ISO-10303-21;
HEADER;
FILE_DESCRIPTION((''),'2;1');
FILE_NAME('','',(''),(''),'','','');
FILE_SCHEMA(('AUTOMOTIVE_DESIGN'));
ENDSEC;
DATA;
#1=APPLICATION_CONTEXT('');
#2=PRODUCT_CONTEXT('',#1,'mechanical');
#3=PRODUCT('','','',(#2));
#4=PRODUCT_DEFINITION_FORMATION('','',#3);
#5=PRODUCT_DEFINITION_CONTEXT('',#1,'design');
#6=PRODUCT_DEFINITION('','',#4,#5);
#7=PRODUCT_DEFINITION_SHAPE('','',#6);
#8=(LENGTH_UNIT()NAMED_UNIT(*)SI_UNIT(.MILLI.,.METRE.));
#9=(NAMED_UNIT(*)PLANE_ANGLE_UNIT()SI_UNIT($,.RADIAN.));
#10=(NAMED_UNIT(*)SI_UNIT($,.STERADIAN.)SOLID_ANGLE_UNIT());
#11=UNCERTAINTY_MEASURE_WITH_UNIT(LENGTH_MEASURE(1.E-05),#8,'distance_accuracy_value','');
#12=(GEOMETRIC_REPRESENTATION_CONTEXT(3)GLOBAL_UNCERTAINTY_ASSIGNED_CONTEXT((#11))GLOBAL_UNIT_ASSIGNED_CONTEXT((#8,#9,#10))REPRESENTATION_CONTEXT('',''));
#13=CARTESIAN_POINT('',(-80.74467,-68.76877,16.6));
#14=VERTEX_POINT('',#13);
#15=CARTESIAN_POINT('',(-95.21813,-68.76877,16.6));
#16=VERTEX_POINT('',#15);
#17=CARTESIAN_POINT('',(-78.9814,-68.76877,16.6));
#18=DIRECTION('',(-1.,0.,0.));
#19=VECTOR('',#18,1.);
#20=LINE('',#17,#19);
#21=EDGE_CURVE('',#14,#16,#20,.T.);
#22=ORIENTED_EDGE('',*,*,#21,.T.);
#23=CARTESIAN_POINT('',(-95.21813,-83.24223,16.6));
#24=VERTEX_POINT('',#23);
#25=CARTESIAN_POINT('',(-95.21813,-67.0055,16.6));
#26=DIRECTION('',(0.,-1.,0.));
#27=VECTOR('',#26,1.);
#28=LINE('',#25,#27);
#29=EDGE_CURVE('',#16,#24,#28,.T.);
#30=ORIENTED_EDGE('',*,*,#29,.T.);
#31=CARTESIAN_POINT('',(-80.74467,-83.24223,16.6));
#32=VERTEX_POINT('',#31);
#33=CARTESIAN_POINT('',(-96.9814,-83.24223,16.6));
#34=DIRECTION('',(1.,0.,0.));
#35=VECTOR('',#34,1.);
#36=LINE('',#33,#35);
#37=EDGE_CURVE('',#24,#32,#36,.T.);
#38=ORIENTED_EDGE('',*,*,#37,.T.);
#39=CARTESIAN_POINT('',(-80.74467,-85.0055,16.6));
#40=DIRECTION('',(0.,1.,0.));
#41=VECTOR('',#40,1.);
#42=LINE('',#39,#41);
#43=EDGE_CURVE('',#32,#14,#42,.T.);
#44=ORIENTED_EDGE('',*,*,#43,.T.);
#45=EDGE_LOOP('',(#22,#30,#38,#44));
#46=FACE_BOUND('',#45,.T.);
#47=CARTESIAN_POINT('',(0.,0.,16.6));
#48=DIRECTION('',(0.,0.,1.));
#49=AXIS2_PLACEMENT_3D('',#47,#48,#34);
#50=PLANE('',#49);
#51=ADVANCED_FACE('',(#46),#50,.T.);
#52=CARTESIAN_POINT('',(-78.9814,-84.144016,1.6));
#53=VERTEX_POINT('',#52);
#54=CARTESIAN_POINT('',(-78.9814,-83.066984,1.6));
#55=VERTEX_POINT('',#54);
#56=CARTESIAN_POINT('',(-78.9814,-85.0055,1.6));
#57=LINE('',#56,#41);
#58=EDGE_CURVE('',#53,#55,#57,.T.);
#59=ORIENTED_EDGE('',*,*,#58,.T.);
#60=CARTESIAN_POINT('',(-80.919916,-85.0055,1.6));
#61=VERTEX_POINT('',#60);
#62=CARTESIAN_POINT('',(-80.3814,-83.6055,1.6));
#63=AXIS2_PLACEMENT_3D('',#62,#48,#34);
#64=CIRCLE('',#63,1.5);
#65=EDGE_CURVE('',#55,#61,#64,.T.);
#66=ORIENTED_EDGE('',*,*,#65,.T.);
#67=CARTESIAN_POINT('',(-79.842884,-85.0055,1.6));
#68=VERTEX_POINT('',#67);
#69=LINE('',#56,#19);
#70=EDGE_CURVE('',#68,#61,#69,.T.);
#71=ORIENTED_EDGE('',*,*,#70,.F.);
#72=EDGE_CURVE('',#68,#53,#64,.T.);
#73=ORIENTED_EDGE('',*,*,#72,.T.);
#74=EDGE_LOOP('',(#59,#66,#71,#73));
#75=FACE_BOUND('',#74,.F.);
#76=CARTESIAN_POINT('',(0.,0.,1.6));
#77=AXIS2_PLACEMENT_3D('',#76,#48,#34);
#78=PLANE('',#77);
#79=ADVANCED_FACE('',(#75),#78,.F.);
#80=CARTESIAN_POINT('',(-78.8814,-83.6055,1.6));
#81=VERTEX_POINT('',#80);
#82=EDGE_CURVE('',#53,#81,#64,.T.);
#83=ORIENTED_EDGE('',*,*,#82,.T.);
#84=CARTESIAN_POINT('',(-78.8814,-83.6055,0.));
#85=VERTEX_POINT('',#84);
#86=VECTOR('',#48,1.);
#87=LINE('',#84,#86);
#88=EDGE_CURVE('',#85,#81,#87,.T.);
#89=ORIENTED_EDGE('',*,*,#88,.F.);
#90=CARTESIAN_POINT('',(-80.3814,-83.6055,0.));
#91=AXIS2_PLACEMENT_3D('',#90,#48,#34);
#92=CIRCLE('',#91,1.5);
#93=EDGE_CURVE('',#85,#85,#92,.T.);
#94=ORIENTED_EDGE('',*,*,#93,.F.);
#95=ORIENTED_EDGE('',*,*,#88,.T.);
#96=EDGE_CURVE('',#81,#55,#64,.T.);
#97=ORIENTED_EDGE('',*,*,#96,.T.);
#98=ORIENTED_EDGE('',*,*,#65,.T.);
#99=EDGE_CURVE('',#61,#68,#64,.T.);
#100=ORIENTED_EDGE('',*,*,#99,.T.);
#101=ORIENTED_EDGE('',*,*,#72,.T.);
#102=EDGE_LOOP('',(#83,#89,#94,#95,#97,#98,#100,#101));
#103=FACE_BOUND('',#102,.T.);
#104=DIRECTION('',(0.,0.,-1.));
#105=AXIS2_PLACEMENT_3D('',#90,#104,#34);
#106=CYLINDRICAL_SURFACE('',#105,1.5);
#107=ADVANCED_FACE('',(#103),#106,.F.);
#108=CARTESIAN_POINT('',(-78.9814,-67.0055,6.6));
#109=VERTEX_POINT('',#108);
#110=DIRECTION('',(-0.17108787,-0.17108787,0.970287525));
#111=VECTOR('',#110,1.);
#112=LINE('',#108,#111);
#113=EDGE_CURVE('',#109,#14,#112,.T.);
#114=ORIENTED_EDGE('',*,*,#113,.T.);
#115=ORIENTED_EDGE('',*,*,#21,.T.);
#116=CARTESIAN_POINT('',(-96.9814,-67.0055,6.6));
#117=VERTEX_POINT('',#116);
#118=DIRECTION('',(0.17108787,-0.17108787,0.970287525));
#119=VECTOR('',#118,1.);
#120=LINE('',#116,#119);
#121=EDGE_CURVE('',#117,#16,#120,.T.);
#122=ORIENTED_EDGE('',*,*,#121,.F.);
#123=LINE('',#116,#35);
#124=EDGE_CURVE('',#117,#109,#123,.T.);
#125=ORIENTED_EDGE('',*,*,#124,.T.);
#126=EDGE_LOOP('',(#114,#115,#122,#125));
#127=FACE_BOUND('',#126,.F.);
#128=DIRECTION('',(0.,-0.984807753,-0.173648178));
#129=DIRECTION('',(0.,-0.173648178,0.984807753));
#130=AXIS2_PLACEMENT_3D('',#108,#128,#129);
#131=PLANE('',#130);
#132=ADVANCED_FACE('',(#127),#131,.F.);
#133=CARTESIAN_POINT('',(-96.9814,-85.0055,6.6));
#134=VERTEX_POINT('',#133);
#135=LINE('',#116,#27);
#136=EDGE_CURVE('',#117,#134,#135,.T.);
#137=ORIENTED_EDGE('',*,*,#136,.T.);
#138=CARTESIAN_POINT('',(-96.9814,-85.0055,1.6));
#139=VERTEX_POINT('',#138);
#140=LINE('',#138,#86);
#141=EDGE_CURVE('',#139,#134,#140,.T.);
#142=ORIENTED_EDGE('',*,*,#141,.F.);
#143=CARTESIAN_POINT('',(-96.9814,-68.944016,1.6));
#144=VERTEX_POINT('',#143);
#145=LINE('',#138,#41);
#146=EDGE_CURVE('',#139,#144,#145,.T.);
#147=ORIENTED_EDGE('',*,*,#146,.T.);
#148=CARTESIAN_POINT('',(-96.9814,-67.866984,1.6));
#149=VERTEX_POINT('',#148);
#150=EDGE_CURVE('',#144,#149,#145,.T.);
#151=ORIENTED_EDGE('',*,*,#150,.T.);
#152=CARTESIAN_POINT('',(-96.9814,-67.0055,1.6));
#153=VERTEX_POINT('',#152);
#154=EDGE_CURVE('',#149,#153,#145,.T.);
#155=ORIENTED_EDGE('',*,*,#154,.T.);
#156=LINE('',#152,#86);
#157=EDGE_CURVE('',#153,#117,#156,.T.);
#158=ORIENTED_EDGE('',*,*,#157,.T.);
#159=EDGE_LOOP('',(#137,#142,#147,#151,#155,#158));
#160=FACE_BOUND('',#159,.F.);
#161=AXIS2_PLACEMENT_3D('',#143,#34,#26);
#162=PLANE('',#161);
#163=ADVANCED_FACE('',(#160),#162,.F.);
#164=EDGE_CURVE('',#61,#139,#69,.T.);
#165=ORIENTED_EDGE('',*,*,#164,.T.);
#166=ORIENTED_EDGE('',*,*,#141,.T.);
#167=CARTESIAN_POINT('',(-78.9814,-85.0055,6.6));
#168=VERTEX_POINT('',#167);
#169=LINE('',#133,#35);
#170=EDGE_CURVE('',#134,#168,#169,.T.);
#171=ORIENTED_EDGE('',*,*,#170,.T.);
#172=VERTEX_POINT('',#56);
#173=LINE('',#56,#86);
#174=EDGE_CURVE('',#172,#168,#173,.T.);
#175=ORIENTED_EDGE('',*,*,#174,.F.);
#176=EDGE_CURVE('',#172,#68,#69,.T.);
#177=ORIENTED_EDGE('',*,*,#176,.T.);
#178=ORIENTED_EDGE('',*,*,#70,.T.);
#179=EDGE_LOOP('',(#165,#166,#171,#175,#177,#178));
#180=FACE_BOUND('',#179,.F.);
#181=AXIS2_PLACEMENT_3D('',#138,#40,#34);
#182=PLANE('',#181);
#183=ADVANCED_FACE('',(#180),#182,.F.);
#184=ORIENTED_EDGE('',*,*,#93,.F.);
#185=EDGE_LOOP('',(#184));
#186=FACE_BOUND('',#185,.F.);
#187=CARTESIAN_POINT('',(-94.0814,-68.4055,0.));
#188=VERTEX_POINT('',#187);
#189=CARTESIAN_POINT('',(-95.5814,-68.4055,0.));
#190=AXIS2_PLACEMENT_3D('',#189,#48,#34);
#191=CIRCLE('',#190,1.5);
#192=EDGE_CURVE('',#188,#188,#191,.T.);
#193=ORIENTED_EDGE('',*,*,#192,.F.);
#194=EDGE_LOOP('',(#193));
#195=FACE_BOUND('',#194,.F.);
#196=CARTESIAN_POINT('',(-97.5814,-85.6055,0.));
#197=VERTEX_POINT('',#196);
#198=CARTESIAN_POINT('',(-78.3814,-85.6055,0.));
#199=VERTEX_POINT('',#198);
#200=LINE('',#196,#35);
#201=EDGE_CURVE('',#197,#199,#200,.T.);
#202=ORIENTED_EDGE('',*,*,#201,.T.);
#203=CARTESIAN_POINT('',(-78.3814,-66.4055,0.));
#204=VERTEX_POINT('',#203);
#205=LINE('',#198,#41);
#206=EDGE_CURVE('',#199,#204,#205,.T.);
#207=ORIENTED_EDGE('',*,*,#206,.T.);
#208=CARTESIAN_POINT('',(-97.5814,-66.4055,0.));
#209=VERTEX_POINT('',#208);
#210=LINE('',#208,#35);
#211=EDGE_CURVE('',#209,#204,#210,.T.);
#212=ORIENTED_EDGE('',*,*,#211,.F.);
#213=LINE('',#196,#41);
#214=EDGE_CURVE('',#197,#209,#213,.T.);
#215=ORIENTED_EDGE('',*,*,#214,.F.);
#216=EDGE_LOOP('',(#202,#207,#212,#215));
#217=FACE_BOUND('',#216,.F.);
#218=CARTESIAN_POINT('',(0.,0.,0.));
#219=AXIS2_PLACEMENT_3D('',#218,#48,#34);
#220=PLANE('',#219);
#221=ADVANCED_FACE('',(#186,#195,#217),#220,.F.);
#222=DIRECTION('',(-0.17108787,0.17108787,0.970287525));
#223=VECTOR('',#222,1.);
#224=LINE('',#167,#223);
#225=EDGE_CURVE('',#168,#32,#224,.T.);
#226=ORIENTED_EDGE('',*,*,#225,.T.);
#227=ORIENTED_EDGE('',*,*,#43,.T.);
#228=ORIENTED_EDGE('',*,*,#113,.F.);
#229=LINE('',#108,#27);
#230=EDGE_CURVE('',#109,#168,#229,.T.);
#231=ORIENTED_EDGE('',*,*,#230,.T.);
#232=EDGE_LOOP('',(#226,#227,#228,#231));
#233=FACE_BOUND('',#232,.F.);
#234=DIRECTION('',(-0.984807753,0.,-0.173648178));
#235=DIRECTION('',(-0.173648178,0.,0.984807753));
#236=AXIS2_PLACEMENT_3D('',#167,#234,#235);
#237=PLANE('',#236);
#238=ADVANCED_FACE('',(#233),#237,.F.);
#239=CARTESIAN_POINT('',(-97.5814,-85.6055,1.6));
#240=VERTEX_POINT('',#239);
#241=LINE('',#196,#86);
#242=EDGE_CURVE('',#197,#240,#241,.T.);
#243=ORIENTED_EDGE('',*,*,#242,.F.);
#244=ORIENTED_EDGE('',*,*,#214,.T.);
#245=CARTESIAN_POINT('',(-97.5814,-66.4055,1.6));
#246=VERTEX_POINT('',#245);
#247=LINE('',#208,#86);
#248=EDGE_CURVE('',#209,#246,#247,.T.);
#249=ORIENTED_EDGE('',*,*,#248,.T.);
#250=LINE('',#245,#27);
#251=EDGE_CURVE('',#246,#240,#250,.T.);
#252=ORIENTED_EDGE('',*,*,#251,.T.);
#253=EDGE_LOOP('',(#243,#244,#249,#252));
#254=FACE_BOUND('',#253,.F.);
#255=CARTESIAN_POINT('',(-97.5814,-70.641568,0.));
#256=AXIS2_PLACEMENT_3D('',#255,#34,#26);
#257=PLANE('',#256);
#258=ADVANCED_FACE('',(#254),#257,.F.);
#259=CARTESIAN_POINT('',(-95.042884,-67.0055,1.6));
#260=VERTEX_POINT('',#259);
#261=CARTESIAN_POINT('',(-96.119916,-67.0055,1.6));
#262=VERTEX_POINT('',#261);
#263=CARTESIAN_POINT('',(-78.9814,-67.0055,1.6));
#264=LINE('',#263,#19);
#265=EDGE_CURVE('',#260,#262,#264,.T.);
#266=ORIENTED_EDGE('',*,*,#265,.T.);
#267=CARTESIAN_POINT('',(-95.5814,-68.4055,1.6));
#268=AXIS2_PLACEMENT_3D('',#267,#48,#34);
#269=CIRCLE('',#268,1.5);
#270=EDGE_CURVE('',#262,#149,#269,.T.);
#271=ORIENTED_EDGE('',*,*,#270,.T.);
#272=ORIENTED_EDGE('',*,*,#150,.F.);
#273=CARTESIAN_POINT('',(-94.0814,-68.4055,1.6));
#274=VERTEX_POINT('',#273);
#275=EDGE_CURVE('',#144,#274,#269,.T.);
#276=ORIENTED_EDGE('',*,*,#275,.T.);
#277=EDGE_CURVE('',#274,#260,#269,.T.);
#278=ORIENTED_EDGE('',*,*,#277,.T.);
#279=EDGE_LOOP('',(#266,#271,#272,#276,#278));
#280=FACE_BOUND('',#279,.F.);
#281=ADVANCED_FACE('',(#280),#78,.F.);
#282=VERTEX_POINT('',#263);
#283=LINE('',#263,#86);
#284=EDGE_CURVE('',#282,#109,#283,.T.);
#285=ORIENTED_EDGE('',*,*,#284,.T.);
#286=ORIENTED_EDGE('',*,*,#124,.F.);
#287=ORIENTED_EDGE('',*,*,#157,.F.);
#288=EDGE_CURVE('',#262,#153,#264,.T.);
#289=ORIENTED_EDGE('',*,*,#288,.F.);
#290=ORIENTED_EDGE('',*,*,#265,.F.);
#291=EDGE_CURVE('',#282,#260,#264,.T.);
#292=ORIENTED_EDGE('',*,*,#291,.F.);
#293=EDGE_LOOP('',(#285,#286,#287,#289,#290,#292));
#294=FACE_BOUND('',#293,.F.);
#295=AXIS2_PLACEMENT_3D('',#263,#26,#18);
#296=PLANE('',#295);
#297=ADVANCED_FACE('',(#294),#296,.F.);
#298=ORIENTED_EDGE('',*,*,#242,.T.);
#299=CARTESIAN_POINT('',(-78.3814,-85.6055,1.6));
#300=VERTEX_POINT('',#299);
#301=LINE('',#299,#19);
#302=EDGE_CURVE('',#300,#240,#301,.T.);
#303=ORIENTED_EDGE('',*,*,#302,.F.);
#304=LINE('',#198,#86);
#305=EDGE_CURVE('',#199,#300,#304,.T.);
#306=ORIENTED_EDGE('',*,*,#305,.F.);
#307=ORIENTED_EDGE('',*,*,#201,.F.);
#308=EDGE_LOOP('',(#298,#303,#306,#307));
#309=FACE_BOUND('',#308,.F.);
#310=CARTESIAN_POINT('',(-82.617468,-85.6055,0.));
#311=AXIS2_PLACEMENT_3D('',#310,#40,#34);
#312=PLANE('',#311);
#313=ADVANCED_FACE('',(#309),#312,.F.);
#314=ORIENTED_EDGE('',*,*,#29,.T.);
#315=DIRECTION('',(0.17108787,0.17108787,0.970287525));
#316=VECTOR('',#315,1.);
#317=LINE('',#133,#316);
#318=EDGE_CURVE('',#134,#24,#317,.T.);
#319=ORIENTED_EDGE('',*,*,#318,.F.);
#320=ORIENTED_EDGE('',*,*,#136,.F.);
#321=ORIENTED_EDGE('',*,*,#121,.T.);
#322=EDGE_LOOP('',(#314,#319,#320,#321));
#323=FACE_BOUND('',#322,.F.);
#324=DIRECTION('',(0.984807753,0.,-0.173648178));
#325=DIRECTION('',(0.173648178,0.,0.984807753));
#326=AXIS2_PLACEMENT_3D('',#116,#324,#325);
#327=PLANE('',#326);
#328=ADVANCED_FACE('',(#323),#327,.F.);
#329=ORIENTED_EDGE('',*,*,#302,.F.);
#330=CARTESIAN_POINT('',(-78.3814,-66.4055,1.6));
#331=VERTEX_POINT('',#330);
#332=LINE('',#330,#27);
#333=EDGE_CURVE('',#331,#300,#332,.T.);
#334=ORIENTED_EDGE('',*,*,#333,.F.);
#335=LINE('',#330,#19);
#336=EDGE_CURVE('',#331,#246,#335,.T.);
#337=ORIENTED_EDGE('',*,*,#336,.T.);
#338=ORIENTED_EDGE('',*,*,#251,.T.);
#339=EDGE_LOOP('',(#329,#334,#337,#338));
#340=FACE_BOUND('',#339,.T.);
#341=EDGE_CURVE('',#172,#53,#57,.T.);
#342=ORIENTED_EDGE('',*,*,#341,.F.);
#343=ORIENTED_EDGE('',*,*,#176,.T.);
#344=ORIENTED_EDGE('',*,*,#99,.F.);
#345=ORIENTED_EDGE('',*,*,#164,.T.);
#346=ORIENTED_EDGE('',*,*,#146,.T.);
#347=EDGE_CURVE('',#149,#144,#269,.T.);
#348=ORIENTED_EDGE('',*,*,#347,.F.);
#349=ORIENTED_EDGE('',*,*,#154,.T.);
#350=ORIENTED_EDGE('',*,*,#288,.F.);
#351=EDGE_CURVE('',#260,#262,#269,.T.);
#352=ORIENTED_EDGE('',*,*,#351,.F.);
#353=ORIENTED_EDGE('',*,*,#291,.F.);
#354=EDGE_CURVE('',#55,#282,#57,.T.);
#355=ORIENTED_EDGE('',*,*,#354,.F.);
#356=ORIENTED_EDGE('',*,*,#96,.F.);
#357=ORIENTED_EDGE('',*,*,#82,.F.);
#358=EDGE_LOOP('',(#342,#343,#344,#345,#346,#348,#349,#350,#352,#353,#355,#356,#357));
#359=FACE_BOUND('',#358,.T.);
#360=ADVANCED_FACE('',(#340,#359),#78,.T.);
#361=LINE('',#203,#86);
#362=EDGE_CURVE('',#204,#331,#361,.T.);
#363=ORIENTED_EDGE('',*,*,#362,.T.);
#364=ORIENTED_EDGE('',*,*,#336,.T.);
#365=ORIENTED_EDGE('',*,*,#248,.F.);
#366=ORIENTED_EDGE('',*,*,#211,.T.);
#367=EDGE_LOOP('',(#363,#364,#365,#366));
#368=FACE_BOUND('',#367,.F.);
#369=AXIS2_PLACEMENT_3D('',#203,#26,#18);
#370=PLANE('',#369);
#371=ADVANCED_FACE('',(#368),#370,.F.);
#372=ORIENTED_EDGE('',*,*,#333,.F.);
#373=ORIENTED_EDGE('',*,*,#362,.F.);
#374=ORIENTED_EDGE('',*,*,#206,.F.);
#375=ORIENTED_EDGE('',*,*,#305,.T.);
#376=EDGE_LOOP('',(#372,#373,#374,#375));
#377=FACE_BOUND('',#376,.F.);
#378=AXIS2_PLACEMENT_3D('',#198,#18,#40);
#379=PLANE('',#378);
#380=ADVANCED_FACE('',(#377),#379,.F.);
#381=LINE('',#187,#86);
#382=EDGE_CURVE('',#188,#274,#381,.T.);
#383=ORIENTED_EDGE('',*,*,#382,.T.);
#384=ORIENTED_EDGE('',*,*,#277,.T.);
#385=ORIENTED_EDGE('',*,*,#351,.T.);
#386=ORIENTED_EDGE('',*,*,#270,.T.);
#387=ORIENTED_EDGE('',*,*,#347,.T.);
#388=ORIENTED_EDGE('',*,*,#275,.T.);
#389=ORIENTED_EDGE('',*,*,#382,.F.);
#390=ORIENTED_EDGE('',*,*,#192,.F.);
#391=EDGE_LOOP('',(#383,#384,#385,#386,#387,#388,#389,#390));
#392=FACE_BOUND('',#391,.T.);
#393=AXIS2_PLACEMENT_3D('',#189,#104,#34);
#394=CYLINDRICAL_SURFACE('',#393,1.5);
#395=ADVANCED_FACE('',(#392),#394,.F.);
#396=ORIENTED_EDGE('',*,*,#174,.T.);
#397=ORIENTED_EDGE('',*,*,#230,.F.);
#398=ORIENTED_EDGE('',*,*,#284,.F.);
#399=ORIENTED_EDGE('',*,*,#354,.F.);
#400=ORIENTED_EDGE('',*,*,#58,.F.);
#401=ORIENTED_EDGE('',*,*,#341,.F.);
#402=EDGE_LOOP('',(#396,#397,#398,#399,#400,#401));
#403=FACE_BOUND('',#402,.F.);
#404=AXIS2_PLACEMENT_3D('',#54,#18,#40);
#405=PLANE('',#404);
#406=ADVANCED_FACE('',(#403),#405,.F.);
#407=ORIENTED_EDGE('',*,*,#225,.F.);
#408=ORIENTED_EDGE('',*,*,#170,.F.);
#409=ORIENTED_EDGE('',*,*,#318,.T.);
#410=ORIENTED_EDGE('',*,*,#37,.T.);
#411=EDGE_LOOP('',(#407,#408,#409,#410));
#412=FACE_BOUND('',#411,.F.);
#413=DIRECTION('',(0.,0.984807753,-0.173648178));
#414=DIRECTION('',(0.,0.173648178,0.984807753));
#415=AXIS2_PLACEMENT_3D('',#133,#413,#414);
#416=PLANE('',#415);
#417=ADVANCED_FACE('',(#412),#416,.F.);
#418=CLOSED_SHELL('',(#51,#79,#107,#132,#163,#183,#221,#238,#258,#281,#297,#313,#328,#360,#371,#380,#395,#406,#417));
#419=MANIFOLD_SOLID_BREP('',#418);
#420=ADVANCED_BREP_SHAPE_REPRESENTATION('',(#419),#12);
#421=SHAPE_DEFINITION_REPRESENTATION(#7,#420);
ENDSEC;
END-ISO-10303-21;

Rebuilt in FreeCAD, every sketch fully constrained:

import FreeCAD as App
import Part
import Sketcher

doc = App.newDocument("Part")
body = doc.addObject("PartDesign::Body", "Body")

# Sketch on XY plane
sketch1 = doc.addObject("Sketcher::SketchObject", "Sketch")
body.addObject(sketch1)
sketch1.AttachmentSupport = (doc.XY_Plane, [""])
sketch1.MapMode = "FlatFace"
sketch1.addGeometry([
    Part.LineSegment(App.Vector(-78.4, -85.6, 0), App.Vector(-78.4, -66.4, 0)),  # 0
    Part.LineSegment(App.Vector(-78.4, -66.4, 0), App.Vector(-97.6, -66.4, 0)),  # 1
    Part.LineSegment(App.Vector(-97.6, -66.4, 0), App.Vector(-97.6, -85.6, 0)),  # 2
    Part.LineSegment(App.Vector(-97.6, -85.6, 0), App.Vector(-78.4, -85.6, 0)),  # 3
    Part.Circle(App.Vector(-80.4, -83.6, 0), App.Vector(0, 0, 1), 1.5),  # 4
    Part.Circle(App.Vector(-95.6, -68.4, 0), App.Vector(0, 0, 1), 1.5),  # 5
], False)
sketch1.addConstraint([
    Sketcher.Constraint("Coincident", 0, 2, 1, 1),
    Sketcher.Constraint("Coincident", 1, 2, 2, 1),
    Sketcher.Constraint("Coincident", 2, 2, 3, 1),
    Sketcher.Constraint("Coincident", 3, 2, 0, 1),
    Sketcher.Constraint("Vertical", 0),
    Sketcher.Constraint("Horizontal", 1),
    Sketcher.Constraint("Vertical", 2),
    Sketcher.Constraint("Horizontal", 3),
    Sketcher.Constraint("Equal", 4, 5),
    Sketcher.Constraint("Equal", 3, 0),
    Sketcher.Constraint("Diameter", 4, 3.0),
    Sketcher.Constraint("DistanceX", 1, 2, 1, 1, 19.2),
    Sketcher.Constraint("DistanceX", 4, 3, 0, 2, 2.0),
    Sketcher.Constraint("DistanceY", 5, 3, 0, 2, 2.0),
    Sketcher.Constraint("DistanceX", 1, 2, 5, 3, 2.0),
    Sketcher.Constraint("DistanceY", 2, 2, 4, 3, 2.0),
    Sketcher.Constraint("DistanceX", 4, 3, -1, 1, 80.3814),
    Sketcher.Constraint("DistanceY", 4, 3, -1, 1, 83.6055),
])
pad1 = doc.addObject("PartDesign::Pad", "Pad")
body.addObject(pad1)
pad1.Profile = sketch1
pad1.Length = 1.6

# Sketch on XY plane
sketch2 = doc.addObject("Sketcher::SketchObject", "Sketch001")
body.addObject(sketch2)
sketch2.AttachmentSupport = (doc.XY_Plane, [""])
sketch2.MapMode = "FlatFace"
sketch2.AttachmentOffset = App.Placement(App.Vector(0, 0, 1.6), App.Rotation())
sketch2.addGeometry([
    Part.LineSegment(App.Vector(-79, -67, 0), App.Vector(-97, -67, 0)),
    Part.LineSegment(App.Vector(-97, -67, 0), App.Vector(-97, -85, 0)),
    Part.LineSegment(App.Vector(-97, -85, 0), App.Vector(-79, -85, 0)),
    Part.LineSegment(App.Vector(-79, -85, 0), App.Vector(-79, -67, 0)),
], False)
sketch2.addConstraint([
    Sketcher.Constraint("Coincident", 0, 2, 1, 1),
    Sketcher.Constraint("Coincident", 1, 2, 2, 1),
    Sketcher.Constraint("Coincident", 2, 2, 3, 1),
    Sketcher.Constraint("Coincident", 3, 2, 0, 1),
    Sketcher.Constraint("Horizontal", 0),
    Sketcher.Constraint("Vertical", 1),
    Sketcher.Constraint("Horizontal", 2),
    Sketcher.Constraint("Vertical", 3),
    Sketcher.Constraint("Equal", 2, 1),
    Sketcher.Constraint("DistanceX", 0, 2, 0, 1, 18.0),
    Sketcher.Constraint("DistanceX", 0, 2, -1, 1, 96.9814),
    Sketcher.Constraint("DistanceY", 0, 2, -1, 1, 67.0055),
])
pad2 = doc.addObject("PartDesign::Pad", "Pad001")
body.addObject(pad2)
pad2.Profile = sketch2
pad2.Length = 5

# Sketch on XY plane
sketch3 = doc.addObject("Sketcher::SketchObject", "Sketch002")
body.addObject(sketch3)
sketch3.AttachmentSupport = (doc.XY_Plane, [""])
sketch3.MapMode = "FlatFace"
sketch3.AttachmentOffset = App.Placement(App.Vector(0, 0, 6.6), App.Rotation())
sketch3.addGeometry([
    Part.LineSegment(App.Vector(-97, -67, 0), App.Vector(-97, -85, 0)),
    Part.LineSegment(App.Vector(-97, -85, 0), App.Vector(-79, -85, 0)),
    Part.LineSegment(App.Vector(-79, -85, 0), App.Vector(-79, -67, 0)),
    Part.LineSegment(App.Vector(-79, -67, 0), App.Vector(-97, -67, 0)),
], False)
sketch3.addConstraint([
    Sketcher.Constraint("Coincident", 0, 2, 1, 1),
    Sketcher.Constraint("Coincident", 1, 2, 2, 1),
    Sketcher.Constraint("Coincident", 2, 2, 3, 1),
    Sketcher.Constraint("Coincident", 3, 2, 0, 1),
    Sketcher.Constraint("Vertical", 0),
    Sketcher.Constraint("Horizontal", 1),
    Sketcher.Constraint("Vertical", 2),
    Sketcher.Constraint("Horizontal", 3),
    Sketcher.Constraint("Equal", 3, 0),
    Sketcher.Constraint("DistanceX", 1, 1, 1, 2, 18.0),
    Sketcher.Constraint("DistanceX", 0, 2, -1, 1, 96.9814),
    Sketcher.Constraint("DistanceY", 0, 2, -1, 1, 85.0055),
])
pad3 = doc.addObject("PartDesign::Pad", "Pad002")
body.addObject(pad3)
pad3.Profile = sketch3
pad3.Length = 10
pad3.TaperAngle = -10

doc.recompute()
